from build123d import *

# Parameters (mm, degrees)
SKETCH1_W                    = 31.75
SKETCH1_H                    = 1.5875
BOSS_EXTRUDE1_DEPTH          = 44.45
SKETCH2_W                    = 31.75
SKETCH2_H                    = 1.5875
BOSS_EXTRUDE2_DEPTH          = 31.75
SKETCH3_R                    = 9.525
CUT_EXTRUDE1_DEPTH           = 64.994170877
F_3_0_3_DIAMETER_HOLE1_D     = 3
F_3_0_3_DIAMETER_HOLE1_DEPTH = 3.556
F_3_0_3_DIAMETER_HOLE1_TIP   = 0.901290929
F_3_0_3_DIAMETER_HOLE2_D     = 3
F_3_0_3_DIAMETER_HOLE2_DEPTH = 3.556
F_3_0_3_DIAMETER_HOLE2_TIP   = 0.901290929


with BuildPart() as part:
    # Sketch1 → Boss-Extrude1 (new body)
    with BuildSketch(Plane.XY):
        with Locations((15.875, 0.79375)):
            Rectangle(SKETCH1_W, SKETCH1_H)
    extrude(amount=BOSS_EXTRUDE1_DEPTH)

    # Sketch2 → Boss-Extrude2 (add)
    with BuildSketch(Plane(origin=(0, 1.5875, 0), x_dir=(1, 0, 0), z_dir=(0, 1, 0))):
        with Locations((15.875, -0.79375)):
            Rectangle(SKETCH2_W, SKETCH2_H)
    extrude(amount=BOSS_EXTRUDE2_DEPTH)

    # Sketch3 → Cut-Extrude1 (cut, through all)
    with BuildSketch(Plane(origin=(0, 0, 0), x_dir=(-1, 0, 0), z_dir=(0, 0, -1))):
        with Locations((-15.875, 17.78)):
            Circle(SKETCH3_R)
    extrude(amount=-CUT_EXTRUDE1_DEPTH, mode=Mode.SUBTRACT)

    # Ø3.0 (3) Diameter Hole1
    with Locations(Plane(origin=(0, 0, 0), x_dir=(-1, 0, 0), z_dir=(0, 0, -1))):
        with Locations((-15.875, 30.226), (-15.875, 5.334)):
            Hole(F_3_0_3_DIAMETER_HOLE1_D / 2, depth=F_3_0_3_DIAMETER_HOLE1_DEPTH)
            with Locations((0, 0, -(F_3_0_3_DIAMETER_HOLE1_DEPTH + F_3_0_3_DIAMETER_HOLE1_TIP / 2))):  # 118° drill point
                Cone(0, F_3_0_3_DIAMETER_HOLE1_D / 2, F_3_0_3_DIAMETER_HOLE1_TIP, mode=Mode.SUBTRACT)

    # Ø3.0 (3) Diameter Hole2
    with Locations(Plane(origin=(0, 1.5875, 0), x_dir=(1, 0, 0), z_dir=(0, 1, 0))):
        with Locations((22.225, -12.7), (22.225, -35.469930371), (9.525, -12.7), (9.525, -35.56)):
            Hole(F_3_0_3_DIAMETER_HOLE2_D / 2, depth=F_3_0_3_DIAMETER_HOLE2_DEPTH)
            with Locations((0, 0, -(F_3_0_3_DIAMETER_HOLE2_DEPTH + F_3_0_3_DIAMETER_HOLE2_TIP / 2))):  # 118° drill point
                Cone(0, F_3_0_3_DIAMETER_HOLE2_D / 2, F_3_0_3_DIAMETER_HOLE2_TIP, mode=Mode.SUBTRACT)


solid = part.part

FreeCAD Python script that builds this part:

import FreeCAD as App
import Part
import Sketcher
Q = App.Units.Quantity

doc = App.newDocument("Part")
params = doc.addObject("Spreadsheet::Sheet", "Params")
for row, (alias, value) in enumerate([
    ("sketch1_width", "1.25 in"),
    ("sketch1_height", "0.0625 in"),
    ("pad1_length", "1.75 in"),
    ("sketch2_width", "1.25 in"),
    ("sketch2_height", "0.0625 in"),
    ("pad2_length", "1.25 in"),
    ("sketch3_diameter", "0.75 in"),
    ("hole_diameter", "3 mm"),
    ("hole_depth", "0.14 in"),
    ("hole2_diameter", "3 mm"),
    ("hole2_depth", "0.14 in"),
], start=1):
    params.set(f"A{row}", alias)
    params.set(f"B{row}", "=" + value)
    params.setAlias(f"B{row}", alias)

body = doc.addObject("PartDesign::Body", "Body")

# Sketch on XY plane
sketch1 = body.newObject("Sketcher::SketchObject", "Sketch")
sketch1.AttachmentSupport = (doc.getObject("XY_Plane"), [""])
sketch1.MapMode = "FlatFace"
sketch1.addGeometry(Part.LineSegment(App.Vector(0, 1.5875, 0), App.Vector(0, 0, 0)), False)
sketch1.addGeometry(Part.LineSegment(App.Vector(0, 0, 0), App.Vector(31.75, 0, 0)), False)
sketch1.addGeometry(Part.LineSegment(App.Vector(31.75, 0, 0), App.Vector(31.75, 1.5875, 0)), False)
sketch1.addGeometry(Part.LineSegment(App.Vector(31.75, 1.5875, 0), App.Vector(0, 1.5875, 0)), False)
sketch1.addConstraint(Sketcher.Constraint("Coincident", 0, 2, 1, 1))
sketch1.addConstraint(Sketcher.Constraint("Coincident", 1, 2, 2, 1))
sketch1.addConstraint(Sketcher.Constraint("Coincident", 2, 2, 3, 1))
sketch1.addConstraint(Sketcher.Constraint("Coincident", 3, 2, 0, 1))
sketch1.addConstraint(Sketcher.Constraint("Vertical", 0))
sketch1.addConstraint(Sketcher.Constraint("Horizontal", 1))
sketch1.addConstraint(Sketcher.Constraint("Vertical", 2))
sketch1.addConstraint(Sketcher.Constraint("Horizontal", 3))
sketch1.addConstraint(Sketcher.Constraint("Coincident", 0, 2, -1, 1))
sketch1.addConstraint(Sketcher.Constraint("DistanceX", 1, 1, 1, 2, Q("1.25 in")))
sketch1.addConstraint(Sketcher.Constraint("DistanceY", 0, 2, 0, 1, Q("0.0625 in")))
sketch1.setExpression("Constraints[9]", "Params.sketch1_width")
sketch1.setExpression("Constraints[10]", "Params.sketch1_height")
pad1 = body.newObject("PartDesign::Pad", "Pad")
pad1.Profile = sketch1
pad1.setExpression("Length", "Params.pad1_length")

# Sketch on XZ plane
sketch2 = body.newObject("Sketcher::SketchObject", "Sketch001")
sketch2.AttachmentSupport = (doc.getObject("XZ_Plane"), [""])
sketch2.MapMode = "FlatFace"
sketch2.AttachmentOffset = App.Placement(App.Vector(0, 0, -0.0625 * 25.4), App.Rotation())
sketch2.addGeometry(Part.LineSegment(App.Vector(0, 0, 0), App.Vector(0, 1.5875, 0)), False)
sketch2.addGeometry(Part.LineSegment(App.Vector(0, 1.5875, 0), App.Vector(31.75, 1.5875, 0)), False)
sketch2.addGeometry(Part.LineSegment(App.Vector(31.75, 1.5875, 0), App.Vector(31.75, 0, 0)), False)
sketch2.addGeometry(Part.LineSegment(App.Vector(31.75, 0, 0), App.Vector(0, 0, 0)), False)
sketch2.addConstraint(Sketcher.Constraint("Coincident", 0, 2, 1, 1))
sketch2.addConstraint(Sketcher.Constraint("Coincident", 1, 2, 2, 1))
sketch2.addConstraint(Sketcher.Constraint("Coincident", 2, 2, 3, 1))
sketch2.addConstraint(Sketcher.Constraint("Coincident", 3, 2, 0, 1))
sketch2.addConstraint(Sketcher.Constraint("Vertical", 0))
sketch2.addConstraint(Sketcher.Constraint("Horizontal", 1))
sketch2.addConstraint(Sketcher.Constraint("Vertical", 2))
sketch2.addConstraint(Sketcher.Constraint("Horizontal", 3))
sketch2.addConstraint(Sketcher.Constraint("Coincident", 3, 2, -1, 1))
sketch2.addConstraint(Sketcher.Constraint("DistanceX", 1, 1, 1, 2, Q("1.25 in")))
sketch2.addConstraint(Sketcher.Constraint("DistanceY", 0, 1, 0, 2, Q("0.0625 in")))
sketch2.setExpression("Constraints[9]", "Params.sketch2_width")
sketch2.setExpression("Constraints[10]", "Params.sketch2_height")
pad2 = body.newObject("PartDesign::Pad", "Pad001")
pad2.Profile = sketch2
pad2.setExpression("Length", "Params.pad2_length")
pad2.Reversed = True

# Sketch on XY plane
sketch3 = body.newObject("Sketcher::SketchObject", "Sketch002")
sketch3.AttachmentSupport = (doc.getObject("XY_Plane"), [""])
sketch3.MapMode = "FlatFace"
sketch3.addGeometry(Part.Circle(App.Vector(15.875, 17.78, 0), App.Vector(0, 0, 1), 9.525), False)
sketch3.addConstraint(Sketcher.Constraint("Diameter", 0, Q("0.75 in")))
sketch3.addConstraint(Sketcher.Constraint("DistanceY", -1, 1, 0, 3, Q("0.7 in")))
sketch3.addConstraint(Sketcher.Constraint("DistanceX", -1, 1, 0, 3, Q("0.625 in")))
sketch3.setExpression("Constraints[0]", "Params.sketch3_diameter")
pocket1 = body.newObject("PartDesign::Pocket", "Pocket")
pocket1.Profile = sketch3
pocket1.Type = "ThroughAll"
pocket1.Reversed = True

# Sketch on XY plane
sketch4 = body.newObject("Sketcher::SketchObject", "Sketch003")
sketch4.AttachmentSupport = (doc.getObject("XY_Plane"), [""])
sketch4.MapMode = "FlatFace"
sketch4.addGeometry(Part.Circle(App.Vector(15.875, 30.226, 0), App.Vector(0, 0, 1), 1.5), False)
sketch4.addGeometry(Part.Circle(App.Vector(15.875, 5.334, 0), App.Vector(0, 0, 1), 1.5), False)
sketch4.addConstraint(Sketcher.Constraint("Equal", 0, 1))
sketch4.addConstraint(Sketcher.Constraint("Vertical", 0, 3, 1, 3))
sketch4.addConstraint(Sketcher.Constraint("Diameter", 0, Q("3 mm")))
sketch4.addConstraint(Sketcher.Constraint("DistanceY", -1, 1, 0, 3, Q("1.19 in")))
sketch4.addConstraint(Sketcher.Constraint("DistanceY", -1, 1, 1, 3, Q("0.21 in")))
sketch4.addConstraint(Sketcher.Constraint("DistanceX", -1, 1, 0, 3, Q("0.625 in")))
doc.recompute()
hole = body.newObject("PartDesign::Hole", "Hole")
hole.Profile = sketch4
hole.ThreadType = "None"
hole.setExpression("Diameter", "Params.hole_diameter")
hole.DepthType = "Dimension"
hole.setExpression("Depth", "Params.hole_depth")
hole.DrillPoint = "Angled"
hole.DrillPointAngle = 118
hole.Reversed = True

# Sketch on XZ plane
sketch5 = body.newObject("Sketcher::SketchObject", "Sketch004")
sketch5.AttachmentSupport = (doc.getObject("XZ_Plane"), [""])
sketch5.MapMode = "FlatFace"
sketch5.AttachmentOffset = App.Placement(App.Vector(0, 0, -0.0625 * 25.4), App.Rotation())
sketch5.addGeometry(Part.Circle(App.Vector(22.225, 12.7, 0), App.Vector(0, 0, 1), 1.5), False)
sketch5.addGeometry(Part.Circle(App.Vector(22.225, 35.46993, 0), App.Vector(0, 0, 1), 1.5), False)
sketch5.addGeometry(Part.Circle(App.Vector(9.525, 12.7, 0), App.Vector(0, 0, 1), 1.5), False)
sketch5.addGeometry(Part.Circle(App.Vector(9.525, 35.56, 0), App.Vector(0, 0, 1), 1.5), False)
sketch5.addConstraint(Sketcher.Constraint("Equal", 0, 1))
sketch5.addConstraint(Sketcher.Constraint("Equal", 1, 2))
sketch5.addConstraint(Sketcher.Constraint("Equal", 2, 3))
sketch5.addConstraint(Sketcher.Constraint("Horizontal", 0, 3, 2, 3))
sketch5.addConstraint(Sketcher.Constraint("Vertical", 0, 3, 1, 3))
sketch5.addConstraint(Sketcher.Constraint("Vertical", 2, 3, 3, 3))
sketch5.addConstraint(Sketcher.Constraint("DistanceY", -1, 1, 0, 3, Q("0.5 in")))
sketch5.addConstraint(Sketcher.Constraint("DistanceY", -1, 1, 3, 3, Q("1.4 in")))
sketch5.addConstraint(Sketcher.Constraint("DistanceX", 2, 3, 0, 3, Q("0.5 in")))
sketch5.addConstraint(Sketcher.Constraint("Diameter", 0, Q("3 mm")))
sketch5.addConstraint(Sketcher.Constraint("DistanceX", -1, 1, 0, 3, Q("0.875 in")))
sketch5.addConstraint(Sketcher.Constraint("DistanceY", -1, 1, 1, 3, Q("35.46993 mm")))
doc.recompute()
hole2 = body.newObject("PartDesign::Hole", "Hole001")
hole2.Profile = sketch5
hole2.ThreadType = "None"
hole2.setExpression("Diameter", "Params.hole2_diameter")
hole2.DepthType = "Dimension"
hole2.setExpression("Depth", "Params.hole2_depth")
hole2.DrillPoint = "Angled"
hole2.DrillPointAngle = 118
hole2.Reversed = True

doc.recompute()
